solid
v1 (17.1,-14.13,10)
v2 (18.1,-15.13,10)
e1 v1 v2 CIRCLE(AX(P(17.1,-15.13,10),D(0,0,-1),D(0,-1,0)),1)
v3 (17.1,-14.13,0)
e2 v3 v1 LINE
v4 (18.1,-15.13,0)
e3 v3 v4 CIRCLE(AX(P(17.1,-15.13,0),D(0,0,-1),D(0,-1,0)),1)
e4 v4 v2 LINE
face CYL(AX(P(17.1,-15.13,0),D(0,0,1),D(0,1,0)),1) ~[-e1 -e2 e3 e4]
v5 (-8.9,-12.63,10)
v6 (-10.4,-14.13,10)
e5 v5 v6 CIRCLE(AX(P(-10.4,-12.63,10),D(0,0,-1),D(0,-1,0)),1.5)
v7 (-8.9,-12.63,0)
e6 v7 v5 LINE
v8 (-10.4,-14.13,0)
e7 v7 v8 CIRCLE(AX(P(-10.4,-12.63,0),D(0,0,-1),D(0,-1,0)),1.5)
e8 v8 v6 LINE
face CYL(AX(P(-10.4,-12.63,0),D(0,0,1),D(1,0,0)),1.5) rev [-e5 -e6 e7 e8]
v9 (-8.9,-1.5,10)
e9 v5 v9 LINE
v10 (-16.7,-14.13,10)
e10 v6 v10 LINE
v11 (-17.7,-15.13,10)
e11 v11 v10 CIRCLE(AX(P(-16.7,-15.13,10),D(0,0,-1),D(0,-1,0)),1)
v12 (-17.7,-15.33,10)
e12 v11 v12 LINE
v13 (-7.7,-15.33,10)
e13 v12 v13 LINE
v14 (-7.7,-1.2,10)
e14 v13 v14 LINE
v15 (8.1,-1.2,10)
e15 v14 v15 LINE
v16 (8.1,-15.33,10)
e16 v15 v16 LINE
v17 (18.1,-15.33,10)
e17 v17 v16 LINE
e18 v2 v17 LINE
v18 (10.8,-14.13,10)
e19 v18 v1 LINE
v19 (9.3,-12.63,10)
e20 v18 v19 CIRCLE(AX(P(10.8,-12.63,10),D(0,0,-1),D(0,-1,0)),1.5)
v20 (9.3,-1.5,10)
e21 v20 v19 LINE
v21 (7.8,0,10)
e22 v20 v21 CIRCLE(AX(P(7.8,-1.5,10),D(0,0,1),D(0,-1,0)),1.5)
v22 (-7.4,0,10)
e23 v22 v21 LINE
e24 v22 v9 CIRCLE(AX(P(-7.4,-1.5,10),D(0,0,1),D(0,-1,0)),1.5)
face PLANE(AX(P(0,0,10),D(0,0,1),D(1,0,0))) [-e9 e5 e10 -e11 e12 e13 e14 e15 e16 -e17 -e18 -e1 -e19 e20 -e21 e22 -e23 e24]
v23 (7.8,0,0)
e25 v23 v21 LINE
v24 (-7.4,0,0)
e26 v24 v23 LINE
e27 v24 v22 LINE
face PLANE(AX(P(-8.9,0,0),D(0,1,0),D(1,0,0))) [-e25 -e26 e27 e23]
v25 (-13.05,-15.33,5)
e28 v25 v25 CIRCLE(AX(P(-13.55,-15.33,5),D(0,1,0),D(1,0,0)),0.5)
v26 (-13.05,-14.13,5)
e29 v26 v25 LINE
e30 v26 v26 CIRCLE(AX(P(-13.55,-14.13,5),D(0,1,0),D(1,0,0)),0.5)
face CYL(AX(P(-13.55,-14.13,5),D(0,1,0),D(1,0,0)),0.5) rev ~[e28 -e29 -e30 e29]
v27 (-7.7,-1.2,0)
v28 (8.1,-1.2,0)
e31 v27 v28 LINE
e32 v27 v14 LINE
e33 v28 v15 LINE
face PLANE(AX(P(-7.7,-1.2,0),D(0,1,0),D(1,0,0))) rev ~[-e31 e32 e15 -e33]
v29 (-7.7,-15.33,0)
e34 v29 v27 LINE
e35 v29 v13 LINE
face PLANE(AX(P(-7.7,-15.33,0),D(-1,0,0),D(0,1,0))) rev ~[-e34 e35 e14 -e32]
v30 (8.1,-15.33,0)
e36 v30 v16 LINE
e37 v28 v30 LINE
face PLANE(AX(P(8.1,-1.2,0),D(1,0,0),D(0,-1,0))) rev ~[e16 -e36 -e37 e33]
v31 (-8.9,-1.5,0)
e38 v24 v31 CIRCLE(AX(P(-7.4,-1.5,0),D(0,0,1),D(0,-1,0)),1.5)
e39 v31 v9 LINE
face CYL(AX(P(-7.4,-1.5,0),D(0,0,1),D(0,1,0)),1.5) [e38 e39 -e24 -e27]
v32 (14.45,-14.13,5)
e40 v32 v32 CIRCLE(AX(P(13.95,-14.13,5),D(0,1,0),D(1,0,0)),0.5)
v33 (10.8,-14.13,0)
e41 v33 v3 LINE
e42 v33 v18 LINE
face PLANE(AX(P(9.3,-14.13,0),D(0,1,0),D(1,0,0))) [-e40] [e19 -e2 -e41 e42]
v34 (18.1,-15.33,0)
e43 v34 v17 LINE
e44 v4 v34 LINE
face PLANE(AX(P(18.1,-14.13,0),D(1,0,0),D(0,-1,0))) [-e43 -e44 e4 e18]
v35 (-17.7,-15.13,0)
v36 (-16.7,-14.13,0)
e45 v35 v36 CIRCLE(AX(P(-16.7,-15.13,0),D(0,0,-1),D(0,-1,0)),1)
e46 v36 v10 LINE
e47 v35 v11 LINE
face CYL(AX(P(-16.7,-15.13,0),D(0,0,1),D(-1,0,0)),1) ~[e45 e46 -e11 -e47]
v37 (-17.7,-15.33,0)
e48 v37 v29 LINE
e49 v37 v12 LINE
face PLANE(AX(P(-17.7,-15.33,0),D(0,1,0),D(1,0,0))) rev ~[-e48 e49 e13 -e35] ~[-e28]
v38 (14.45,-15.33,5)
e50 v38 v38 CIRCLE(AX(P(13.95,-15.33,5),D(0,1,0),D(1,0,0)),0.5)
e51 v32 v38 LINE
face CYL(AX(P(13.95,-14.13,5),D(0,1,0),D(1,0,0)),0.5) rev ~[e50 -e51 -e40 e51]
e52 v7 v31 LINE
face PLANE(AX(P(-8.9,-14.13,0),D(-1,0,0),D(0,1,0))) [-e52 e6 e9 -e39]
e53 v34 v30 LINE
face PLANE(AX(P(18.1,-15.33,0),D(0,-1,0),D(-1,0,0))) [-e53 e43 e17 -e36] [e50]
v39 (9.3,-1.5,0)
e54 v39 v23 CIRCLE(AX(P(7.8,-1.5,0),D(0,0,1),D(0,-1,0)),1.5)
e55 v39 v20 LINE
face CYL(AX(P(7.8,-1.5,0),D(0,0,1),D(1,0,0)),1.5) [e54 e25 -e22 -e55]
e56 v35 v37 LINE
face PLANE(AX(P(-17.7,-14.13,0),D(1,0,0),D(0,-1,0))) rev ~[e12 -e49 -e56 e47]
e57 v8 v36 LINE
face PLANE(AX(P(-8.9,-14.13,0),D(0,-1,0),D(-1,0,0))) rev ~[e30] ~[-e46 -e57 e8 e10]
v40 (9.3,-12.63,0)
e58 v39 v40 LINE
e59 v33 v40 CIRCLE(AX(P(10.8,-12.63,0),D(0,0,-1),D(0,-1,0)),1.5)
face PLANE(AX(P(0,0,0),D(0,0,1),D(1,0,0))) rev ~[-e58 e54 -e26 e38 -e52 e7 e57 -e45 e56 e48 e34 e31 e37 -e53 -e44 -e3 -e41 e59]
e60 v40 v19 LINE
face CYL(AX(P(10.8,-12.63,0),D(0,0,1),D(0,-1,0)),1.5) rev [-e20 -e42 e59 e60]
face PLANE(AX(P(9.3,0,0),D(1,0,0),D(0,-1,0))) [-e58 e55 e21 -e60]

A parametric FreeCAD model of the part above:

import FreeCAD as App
import Part
import Sketcher


def edges_at(feature, points):
    """Names of the edges that pass closest to the given points."""
    edges = feature.Shape.Edges
    near = lambda p: min(range(len(edges)), key=lambda i: edges[i].distToShape(Part.Vertex(*p))[0])
    return sorted({f"Edge{near(p) + 1}" for p in points})


def add_polygon(sketch, points):
    """Adds a closed chain of lines whose ends are joined by coincident constraints."""
    first, n = sketch.GeometryCount, len(points)
    for a, b in zip(points, points[1:] + points[:1]):
        sketch.addGeometry(Part.LineSegment(App.Vector(*a, 0), App.Vector(*b, 0)), False)
    for i in range(n):
        sketch.addConstraint(Sketcher.Constraint("Coincident", first + i, 2, first + (i + 1) % n, 1))

doc = App.newDocument("Part")
body = doc.addObject("PartDesign::Body", "Body")

sketch1 = body.newObject("Sketcher::SketchObject", "Sketch")
sketch1.AttachmentSupport = (doc.getObject("XY_Plane"), [""])
sketch1.MapMode = "FlatFace"
add_polygon(sketch1, [(9.3, 0), (-8.9, 0), (-8.9, -14.1), (-17.7, -14.1), (-17.7, -15.3), (-7.7, -15.3), (-7.7, -1.2), (8.1, -1.2), (8.1, -15.3), (18.1, -15.3), (18.1, -14.1), (9.3, -14.1)])
sketch1.addConstraint(Sketcher.Constraint("Horizontal", 0))
sketch1.addConstraint(Sketcher.Constraint("Vertical", 1))
sketch1.addConstraint(Sketcher.Constraint("Horizontal", 2))
sketch1.addConstraint(Sketcher.Constraint("Vertical", 3))
sketch1.addConstraint(Sketcher.Constraint("Horizontal", 4))
sketch1.addConstraint(Sketcher.Constraint("Vertical", 5))
sketch1.addConstraint(Sketcher.Constraint("Horizontal", 6))
sketch1.addConstraint(Sketcher.Constraint("Vertical", 7))
sketch1.addConstraint(Sketcher.Constraint("Horizontal", 8))
sketch1.addConstraint(Sketcher.Constraint("Vertical", 9))
sketch1.addConstraint(Sketcher.Constraint("Horizontal", 10))
sketch1.addConstraint(Sketcher.Constraint("Vertical", 11))
sketch1.addConstraint(Sketcher.Constraint("PointOnObject", 0, 2, -1))
sketch1.addConstraint(Sketcher.Constraint("Horizontal", 4, 2, 7, 2))
sketch1.addConstraint(Sketcher.Constraint("Horizontal", 2, 2, 9, 2))
sketch1.addConstraint(Sketcher.Constraint("Equal", 4, 8))
sketch1.addConstraint(Sketcher.Constraint("Equal", 2, 10))
sketch1.addConstraint(Sketcher.Constraint("Equal", 1, 5))
sketch1.addConstraint(Sketcher.Constraint("DistanceX", 4, 1, 4, 2, 10.0))
sketch1.addConstraint(Sketcher.Constraint("DistanceX", 6, 1, 6, 2, 15.8))
sketch1.addConstraint(Sketcher.Constraint("DistanceY", 3, 2, 3, 1, 1.2))
sketch1.addConstraint(Sketcher.Constraint("DistanceY", 1, 2, 1, 1, 14.13))
sketch1.addConstraint(Sketcher.Constraint("DistanceX", 1, 2, 4, 2, 1.2))
sketch1.addConstraint(Sketcher.Constraint("DistanceX", 0, 2, -1, 1, 8.9))
pad1 = body.newObject("PartDesign::Pad", "Pad")
pad1.Profile = sketch1
pad1.Length = 10
doc.recompute()

fillet = body.newObject("PartDesign::Fillet", "Fillet")
fillet.Base = (pad1, edges_at(pad1, [(18.1, -14.13, 5), (-17.7, -14.13, 5)]))
fillet.Radius = 1
doc.recompute()

fillet2 = body.newObject("PartDesign::Fillet", "Fillet001")
fillet2.Base = (fillet, edges_at(fillet, [
    (-8.9, 0, 5),
    (9.3, 0, 5),
    (9.3, -14.13, 5),
    (-8.9, -14.13, 5),
]))
fillet2.Radius = 1.5

sketch2 = body.newObject("Sketcher::SketchObject", "Sketch001")
sketch2.AttachmentSupport = (doc.getObject("XZ_Plane"), [""])
sketch2.MapMode = "FlatFace"
sketch2.AttachmentOffset = App.Placement(App.Vector(0, 0, 14.13), App.Rotation())
sketch2.addGeometry(Part.Circle(App.Vector(-13.6, 5, 0), App.Vector(0, 0, 1), 0.5), False)
sketch2.addGeometry(Part.Circle(App.Vector(13.9, 5, 0), App.Vector(0, 0, 1), 0.5), False)
sketch2.addConstraint(Sketcher.Constraint("Equal", 0, 1))
sketch2.addConstraint(Sketcher.Constraint("Horizontal", 0, 3, 1, 3))
sketch2.addConstraint(Sketcher.Constraint("Diameter", 0, 1.0))
sketch2.addConstraint(Sketcher.Constraint("DistanceY", -1, 1, 0, 3, 5.0))
sketch2.addConstraint(Sketcher.Constraint("DistanceX", 0, 3, 1, 3, 27.5))
sketch2.addConstraint(Sketcher.Constraint("DistanceX", 0, 3, -1, 1, 13.55))
pocket1 = body.newObject("PartDesign::Pocket", "Pocket")
pocket1.Profile = sketch2
pocket1.Type = "ThroughAll"
pocket1.Reversed = True

doc.recompute()
